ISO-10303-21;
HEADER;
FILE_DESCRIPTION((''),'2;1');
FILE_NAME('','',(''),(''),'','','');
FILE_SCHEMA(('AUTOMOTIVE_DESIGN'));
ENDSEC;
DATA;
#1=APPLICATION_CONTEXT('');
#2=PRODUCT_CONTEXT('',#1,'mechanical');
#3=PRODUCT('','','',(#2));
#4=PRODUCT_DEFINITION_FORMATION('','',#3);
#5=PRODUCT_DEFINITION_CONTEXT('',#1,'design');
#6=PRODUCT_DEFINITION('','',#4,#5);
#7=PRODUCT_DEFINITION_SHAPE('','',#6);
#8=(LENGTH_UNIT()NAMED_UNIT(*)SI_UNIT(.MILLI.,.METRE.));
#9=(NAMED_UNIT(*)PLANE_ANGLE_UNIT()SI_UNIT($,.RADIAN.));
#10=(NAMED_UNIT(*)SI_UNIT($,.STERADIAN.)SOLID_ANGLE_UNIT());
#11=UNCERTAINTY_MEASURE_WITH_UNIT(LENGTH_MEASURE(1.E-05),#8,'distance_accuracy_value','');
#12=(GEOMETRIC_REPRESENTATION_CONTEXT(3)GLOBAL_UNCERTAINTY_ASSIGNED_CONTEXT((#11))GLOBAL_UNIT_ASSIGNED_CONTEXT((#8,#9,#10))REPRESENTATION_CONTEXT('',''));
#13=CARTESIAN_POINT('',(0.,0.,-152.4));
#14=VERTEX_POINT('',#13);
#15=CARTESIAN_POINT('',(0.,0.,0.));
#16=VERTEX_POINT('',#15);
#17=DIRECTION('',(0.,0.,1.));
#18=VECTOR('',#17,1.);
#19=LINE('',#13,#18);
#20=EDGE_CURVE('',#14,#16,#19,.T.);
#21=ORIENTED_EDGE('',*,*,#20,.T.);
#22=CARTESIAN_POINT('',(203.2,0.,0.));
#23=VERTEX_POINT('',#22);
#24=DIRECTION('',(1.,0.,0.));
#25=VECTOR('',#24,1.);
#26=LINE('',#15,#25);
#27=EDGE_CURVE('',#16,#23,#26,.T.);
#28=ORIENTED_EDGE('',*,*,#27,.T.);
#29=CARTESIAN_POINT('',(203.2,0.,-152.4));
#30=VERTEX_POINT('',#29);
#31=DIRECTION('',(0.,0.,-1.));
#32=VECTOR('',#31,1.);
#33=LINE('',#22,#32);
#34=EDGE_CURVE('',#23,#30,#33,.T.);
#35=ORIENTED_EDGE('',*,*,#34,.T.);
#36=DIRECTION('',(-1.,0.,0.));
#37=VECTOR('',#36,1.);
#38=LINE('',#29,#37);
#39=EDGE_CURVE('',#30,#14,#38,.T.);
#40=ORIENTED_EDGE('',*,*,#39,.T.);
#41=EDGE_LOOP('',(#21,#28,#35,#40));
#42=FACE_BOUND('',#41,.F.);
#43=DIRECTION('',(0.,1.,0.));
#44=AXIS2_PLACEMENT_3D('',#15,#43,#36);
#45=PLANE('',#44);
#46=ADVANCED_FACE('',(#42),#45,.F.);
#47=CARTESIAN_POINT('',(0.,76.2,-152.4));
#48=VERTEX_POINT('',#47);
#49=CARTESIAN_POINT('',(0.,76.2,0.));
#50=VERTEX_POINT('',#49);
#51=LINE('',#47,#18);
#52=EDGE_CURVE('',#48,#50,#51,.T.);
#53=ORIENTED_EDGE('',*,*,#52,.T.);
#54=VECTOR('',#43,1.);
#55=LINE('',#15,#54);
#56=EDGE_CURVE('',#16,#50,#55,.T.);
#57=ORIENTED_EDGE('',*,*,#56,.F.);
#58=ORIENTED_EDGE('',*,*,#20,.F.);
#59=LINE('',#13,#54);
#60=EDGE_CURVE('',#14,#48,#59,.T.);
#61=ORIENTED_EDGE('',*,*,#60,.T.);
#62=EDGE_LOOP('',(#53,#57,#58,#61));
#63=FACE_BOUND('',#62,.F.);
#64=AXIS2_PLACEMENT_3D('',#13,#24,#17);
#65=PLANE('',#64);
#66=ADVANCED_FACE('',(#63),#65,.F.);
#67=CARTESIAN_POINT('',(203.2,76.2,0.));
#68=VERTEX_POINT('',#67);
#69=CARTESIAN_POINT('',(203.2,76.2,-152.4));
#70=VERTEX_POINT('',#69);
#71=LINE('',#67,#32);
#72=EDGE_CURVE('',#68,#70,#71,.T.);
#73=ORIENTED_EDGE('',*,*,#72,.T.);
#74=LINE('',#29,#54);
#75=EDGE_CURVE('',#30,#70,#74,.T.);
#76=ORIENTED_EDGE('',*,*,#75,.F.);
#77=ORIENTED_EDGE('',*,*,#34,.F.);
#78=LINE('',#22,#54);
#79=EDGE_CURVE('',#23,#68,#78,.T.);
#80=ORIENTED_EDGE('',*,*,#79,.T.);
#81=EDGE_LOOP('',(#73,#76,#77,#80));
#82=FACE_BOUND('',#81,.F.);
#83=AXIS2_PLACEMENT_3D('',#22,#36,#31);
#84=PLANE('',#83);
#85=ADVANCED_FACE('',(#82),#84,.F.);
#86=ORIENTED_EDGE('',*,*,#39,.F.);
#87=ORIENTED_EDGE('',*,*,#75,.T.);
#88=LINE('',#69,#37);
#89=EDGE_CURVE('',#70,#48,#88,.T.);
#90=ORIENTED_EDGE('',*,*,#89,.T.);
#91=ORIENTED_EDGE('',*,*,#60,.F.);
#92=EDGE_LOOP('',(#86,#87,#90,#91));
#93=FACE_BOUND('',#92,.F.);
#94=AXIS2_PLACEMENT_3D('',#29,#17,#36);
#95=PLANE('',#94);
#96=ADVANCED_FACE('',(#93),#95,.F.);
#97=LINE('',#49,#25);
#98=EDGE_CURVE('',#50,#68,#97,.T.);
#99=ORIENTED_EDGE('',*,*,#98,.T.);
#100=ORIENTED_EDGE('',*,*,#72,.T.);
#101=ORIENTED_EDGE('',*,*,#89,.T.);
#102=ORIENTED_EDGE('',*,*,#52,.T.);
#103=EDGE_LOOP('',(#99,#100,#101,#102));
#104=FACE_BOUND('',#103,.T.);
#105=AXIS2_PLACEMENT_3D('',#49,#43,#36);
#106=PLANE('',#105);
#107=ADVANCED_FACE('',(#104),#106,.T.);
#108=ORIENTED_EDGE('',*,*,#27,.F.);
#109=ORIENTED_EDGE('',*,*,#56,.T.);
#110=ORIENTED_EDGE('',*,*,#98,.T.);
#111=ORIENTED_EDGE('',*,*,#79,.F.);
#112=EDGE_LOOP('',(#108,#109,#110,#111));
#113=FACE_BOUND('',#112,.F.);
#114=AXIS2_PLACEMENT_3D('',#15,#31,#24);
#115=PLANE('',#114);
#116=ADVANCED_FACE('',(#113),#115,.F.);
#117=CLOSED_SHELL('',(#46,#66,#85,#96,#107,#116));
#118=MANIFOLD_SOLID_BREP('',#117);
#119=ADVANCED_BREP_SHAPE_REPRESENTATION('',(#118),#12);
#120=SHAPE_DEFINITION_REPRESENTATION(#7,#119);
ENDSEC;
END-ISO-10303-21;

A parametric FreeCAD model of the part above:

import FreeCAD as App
import Part
import Sketcher

V = App.Vector
Q = App.Units.Quantity


def add_polygon(sketch, points):
    """Adds a closed chain of lines whose ends are joined by coincident constraints."""
    first, n = sketch.GeometryCount, len(points)
    for a, b in zip(points, points[1:] + points[:1]):
        sketch.addGeometry(Part.LineSegment(App.Vector(*a, 0), App.Vector(*b, 0)), False)
    for i in range(n):
        sketch.addConstraint(Sketcher.Constraint("Coincident", first + i, 2, first + (i + 1) % n, 1))

doc = App.newDocument("Part")
params = doc.addObject("Spreadsheet::Sheet", "Params")
for row, (alias, value) in enumerate([
    ("sketch1_width", "8 in"),
    ("sketch1_height", "6 in"),
    ("pad1_length", "3 in"),
], start=1):
    params.set(f"A{row}", alias)
    params.set(f"B{row}", "=" + value)
    params.setAlias(f"B{row}", alias)

body = doc.addObject("PartDesign::Body", "Body")

# Sketch on XZ plane
sketch1 = body.newObject("Sketcher::SketchObject", "Sketch")
sketch1.AttachmentSupport = (doc.getObject("XZ_Plane"), [""])
sketch1.MapMode = "FlatFace"
add_polygon(sketch1, [(0, -152), (0, 0), (203, 0), (203, -152)])  # lines 0-3
sketch1.addConstraint([
    Sketcher.Constraint("Vertical", 0),
    Sketcher.Constraint("Horizontal", 1),
    Sketcher.Constraint("Vertical", 2),
    Sketcher.Constraint("Horizontal", 3),
    Sketcher.Constraint("Coincident", 0, 2, -1, 1),
    Sketcher.Constraint("DistanceX", 1, 1, 1, 2, Q("8 in")),
    Sketcher.Constraint("DistanceY", 0, 1, 0, 2, Q("6 in")),
])
sketch1.setExpression("Constraints[9]", "Params.sketch1_width")
sketch1.setExpression("Constraints[10]", "Params.sketch1_height")
pad1 = body.newObject("PartDesign::Pad", "Pad")
pad1.Profile = sketch1
pad1.setExpression("Length", "Params.pad1_length")
pad1.Reversed = True

doc.recompute()
